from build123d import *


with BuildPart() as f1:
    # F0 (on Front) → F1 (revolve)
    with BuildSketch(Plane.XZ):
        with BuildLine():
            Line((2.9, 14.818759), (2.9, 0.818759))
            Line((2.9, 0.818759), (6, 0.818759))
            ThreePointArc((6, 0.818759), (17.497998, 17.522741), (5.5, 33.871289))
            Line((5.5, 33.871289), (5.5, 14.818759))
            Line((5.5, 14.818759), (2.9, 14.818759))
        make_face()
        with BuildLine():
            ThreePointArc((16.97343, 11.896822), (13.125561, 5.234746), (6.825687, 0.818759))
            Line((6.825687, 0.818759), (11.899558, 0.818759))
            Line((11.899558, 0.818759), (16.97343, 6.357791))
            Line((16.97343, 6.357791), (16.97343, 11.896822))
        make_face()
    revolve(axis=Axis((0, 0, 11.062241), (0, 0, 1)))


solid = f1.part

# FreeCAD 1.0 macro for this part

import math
import FreeCAD as App
import Part
import Sketcher

V = App.Vector
Q = App.Units.Quantity

doc = App.newDocument("Part")
body = doc.addObject("PartDesign::Body", "Body")
body.AllowCompound = True

# Sketch on XZ plane
sketch1 = body.newObject("Sketcher::SketchObject", "Sketch")
sketch1.AttachmentSupport = (doc.getObject("XZ_Plane"), [""])
sketch1.MapMode = "FlatFace"
sketch1.addGeometry([
    Part.LineSegment(V(2.9, 14.818759, 0), V(2.9, 0.818759, 0)),  # 0
    Part.LineSegment(V(2.9, 0.818759, 0), V(6, 0.818759, 0)),  # 1
    Part.ArcOfCircle(Part.Circle(V(0, 17.258041, 0), V(0, 0, 1), 17.5), math.radians(-69.948957), math.radians(71.682301)),  # 2
    Part.LineSegment(V(5.5, 33.871289, 0), V(5.5, 14.818759, 0)),  # 3
    Part.LineSegment(V(5.5, 14.818759, 0), V(2.9, 14.818759, 0)),  # 4
    Part.ArcOfCircle(Part.Circle(V(-0.000005, 17.258045, 0), V(0, 0, 1), 17.800006), math.radians(-67.451478), math.radians(-17.529225)),  # 5
    Part.LineSegment(V(6.825687, 0.818759, 0), V(11.899558, 0.818759, 0)),  # 6
    Part.LineSegment(V(11.899558, 0.818759, 0), V(16.97343, 6.357791, 0)),  # 7
    Part.LineSegment(V(16.97343, 6.357791, 0), V(16.97343, 11.896822, 0)),  # 8
], False)
sketch1.addConstraint([
    Sketcher.Constraint("Coincident", 0, 2, 1, 1),
    Sketcher.Constraint("Coincident", 1, 2, 2, 1),
    Sketcher.Constraint("Coincident", 2, 2, 3, 1),
    Sketcher.Constraint("Coincident", 3, 2, 4, 1),
    Sketcher.Constraint("Coincident", 4, 2, 0, 1),
    Sketcher.Constraint("Coincident", 5, 1, 6, 1),
    Sketcher.Constraint("Coincident", 6, 2, 7, 1),
    Sketcher.Constraint("Coincident", 7, 2, 8, 1),
    Sketcher.Constraint("Coincident", 8, 2, 5, 2),
    Sketcher.Constraint("Vertical", 0),
    Sketcher.Constraint("Horizontal", 1),
    Sketcher.Constraint("Vertical", 3),
    Sketcher.Constraint("Horizontal", 4),
    Sketcher.Constraint("Horizontal", 6),
    Sketcher.Constraint("Vertical", 8),
    Sketcher.Constraint("Coincident", 5, 3, 2, 3),
    Sketcher.Constraint("PointOnObject", 2, 3, -2),
    Sketcher.Constraint("Horizontal", 1, 2, 5, 1),
    Sketcher.Constraint("Radius", 2, Q("17.5 mm")),
    Sketcher.Constraint("DistanceY", 0, 2, 0, 1, Q("14 mm")),
    Sketcher.Constraint("DistanceX", 1, 1, 1, 2, Q("3.1 mm")),
    Sketcher.Constraint("DistanceX", 4, 2, 4, 1, Q("2.6 mm")),
    Sketcher.Constraint("DistanceX", -1, 1, 1, 2, Q("6 mm")),
    Sketcher.Constraint("Radius", 5, Q("17.800006 mm")),
    Sketcher.Constraint("DistanceX", 6, 1, 6, 2, Q("5.073871 mm")),
    Sketcher.Constraint("DistanceY", 8, 1, 8, 2, Q("5.539031 mm")),
    Sketcher.Constraint("Distance", 7, Q("7.511661 mm")),
    Sketcher.Constraint("DistanceY", -1, 1, 2, 3, Q("17.258041 mm")),
])
revolution = body.newObject("PartDesign::Revolution", "Revolution")
revolution.Profile = sketch1
revolution.ReferenceAxis = (sketch1, ["V_Axis"])
revolution.Angle = 360

doc.recompute()
